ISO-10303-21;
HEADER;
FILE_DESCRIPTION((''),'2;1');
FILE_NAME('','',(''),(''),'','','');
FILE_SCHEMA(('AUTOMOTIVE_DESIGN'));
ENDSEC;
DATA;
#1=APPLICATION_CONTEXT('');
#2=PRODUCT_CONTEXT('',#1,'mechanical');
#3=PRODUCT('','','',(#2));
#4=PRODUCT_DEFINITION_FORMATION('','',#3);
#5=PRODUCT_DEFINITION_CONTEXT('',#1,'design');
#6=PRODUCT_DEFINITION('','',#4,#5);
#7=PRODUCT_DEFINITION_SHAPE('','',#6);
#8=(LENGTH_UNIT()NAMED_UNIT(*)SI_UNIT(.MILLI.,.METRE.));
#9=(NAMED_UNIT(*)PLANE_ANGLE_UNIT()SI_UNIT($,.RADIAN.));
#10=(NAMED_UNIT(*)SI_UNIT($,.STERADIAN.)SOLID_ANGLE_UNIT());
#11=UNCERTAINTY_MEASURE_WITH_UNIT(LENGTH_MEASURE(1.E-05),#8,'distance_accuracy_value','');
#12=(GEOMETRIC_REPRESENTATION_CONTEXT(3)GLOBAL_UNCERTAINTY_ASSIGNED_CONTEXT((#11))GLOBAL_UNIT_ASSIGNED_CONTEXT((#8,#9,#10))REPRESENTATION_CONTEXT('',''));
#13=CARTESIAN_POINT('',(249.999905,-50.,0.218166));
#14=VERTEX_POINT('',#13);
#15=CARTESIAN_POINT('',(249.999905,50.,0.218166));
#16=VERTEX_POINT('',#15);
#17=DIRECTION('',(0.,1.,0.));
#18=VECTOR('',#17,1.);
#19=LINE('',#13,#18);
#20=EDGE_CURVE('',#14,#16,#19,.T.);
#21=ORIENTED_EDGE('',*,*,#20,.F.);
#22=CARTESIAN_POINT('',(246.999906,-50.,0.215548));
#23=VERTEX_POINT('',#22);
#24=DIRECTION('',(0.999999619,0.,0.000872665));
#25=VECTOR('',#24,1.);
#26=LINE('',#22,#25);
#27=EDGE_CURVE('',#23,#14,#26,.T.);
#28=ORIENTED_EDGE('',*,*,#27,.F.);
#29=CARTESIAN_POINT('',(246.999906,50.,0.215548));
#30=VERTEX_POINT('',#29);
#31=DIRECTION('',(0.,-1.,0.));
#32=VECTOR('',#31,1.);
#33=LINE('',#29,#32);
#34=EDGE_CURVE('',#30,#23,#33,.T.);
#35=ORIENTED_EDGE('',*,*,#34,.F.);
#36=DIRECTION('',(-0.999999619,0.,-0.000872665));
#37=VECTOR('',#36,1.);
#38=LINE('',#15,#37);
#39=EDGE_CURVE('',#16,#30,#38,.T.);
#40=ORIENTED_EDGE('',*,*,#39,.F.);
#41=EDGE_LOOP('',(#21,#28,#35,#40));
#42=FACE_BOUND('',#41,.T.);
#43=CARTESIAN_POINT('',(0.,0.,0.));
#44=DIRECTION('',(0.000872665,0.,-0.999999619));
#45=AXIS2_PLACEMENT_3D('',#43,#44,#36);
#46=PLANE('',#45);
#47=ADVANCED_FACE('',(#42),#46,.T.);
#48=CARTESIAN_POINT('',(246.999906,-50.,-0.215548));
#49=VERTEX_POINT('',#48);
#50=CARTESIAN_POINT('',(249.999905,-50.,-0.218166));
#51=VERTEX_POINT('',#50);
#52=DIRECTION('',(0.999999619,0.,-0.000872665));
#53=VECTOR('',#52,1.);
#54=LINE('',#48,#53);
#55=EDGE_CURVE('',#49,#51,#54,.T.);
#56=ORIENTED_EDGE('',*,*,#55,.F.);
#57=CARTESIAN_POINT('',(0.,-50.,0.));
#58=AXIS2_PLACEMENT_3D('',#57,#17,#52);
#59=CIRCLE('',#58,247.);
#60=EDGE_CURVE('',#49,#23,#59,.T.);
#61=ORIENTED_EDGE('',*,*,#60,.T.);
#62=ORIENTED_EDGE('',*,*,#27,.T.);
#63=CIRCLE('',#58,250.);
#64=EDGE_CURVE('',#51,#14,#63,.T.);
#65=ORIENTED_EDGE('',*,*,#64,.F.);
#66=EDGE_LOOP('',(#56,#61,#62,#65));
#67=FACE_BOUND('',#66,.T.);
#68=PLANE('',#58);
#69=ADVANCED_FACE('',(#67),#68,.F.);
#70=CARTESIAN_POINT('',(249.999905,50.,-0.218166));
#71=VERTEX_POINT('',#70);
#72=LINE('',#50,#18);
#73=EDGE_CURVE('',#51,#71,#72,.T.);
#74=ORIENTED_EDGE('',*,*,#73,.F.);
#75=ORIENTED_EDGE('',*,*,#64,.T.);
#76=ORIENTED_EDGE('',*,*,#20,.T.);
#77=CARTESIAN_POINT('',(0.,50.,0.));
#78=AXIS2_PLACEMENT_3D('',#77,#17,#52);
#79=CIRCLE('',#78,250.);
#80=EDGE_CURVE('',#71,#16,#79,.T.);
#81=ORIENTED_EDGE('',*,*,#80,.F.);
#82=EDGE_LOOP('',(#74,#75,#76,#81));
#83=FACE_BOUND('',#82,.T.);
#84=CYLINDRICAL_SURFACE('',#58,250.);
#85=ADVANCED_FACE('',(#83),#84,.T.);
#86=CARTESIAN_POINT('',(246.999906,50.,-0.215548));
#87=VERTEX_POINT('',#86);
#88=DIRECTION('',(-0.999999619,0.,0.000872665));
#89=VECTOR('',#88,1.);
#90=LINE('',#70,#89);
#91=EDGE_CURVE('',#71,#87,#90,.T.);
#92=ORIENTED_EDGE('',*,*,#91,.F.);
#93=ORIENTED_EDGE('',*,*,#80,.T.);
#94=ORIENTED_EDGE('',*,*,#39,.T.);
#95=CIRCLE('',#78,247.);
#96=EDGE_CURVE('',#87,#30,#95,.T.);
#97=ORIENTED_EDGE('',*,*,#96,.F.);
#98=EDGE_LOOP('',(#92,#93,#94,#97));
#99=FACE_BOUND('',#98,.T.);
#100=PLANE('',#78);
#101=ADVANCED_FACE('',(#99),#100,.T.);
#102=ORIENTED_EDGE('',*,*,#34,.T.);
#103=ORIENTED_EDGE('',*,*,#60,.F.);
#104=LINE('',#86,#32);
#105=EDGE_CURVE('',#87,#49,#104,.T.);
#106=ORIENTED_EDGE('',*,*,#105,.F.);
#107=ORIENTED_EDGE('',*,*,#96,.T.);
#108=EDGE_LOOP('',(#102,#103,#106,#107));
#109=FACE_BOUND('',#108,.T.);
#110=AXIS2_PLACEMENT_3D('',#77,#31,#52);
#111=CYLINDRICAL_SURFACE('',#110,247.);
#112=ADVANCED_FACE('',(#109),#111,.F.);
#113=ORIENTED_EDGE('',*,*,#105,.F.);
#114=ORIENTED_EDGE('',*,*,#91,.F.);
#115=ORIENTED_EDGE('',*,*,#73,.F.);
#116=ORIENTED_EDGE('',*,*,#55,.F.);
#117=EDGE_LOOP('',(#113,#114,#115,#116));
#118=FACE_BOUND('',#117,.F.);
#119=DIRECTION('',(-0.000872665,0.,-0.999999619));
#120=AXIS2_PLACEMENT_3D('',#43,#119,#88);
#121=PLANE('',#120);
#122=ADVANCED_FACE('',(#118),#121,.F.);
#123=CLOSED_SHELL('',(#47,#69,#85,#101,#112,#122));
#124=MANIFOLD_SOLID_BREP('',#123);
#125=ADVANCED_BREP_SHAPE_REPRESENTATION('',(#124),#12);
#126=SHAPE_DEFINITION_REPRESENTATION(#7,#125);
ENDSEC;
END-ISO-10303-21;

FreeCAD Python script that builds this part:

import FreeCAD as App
import Part
import Sketcher
Q = App.Units.Quantity

doc = App.newDocument("Part")
body = doc.addObject("PartDesign::Body", "Body")

# Sketch on XY plane
sketch1 = doc.addObject("Sketcher::SketchObject", "Sketch")
body.addObject(sketch1)
sketch1.AttachmentSupport = (doc.XY_Plane, [""])
sketch1.MapMode = "FlatFace"
sketch1.addGeometry(Part.LineSegment(App.Vector(-247, 50, 0), App.Vector(-250, 50, 0)), False)
sketch1.addGeometry(Part.LineSegment(App.Vector(-250, 50, 0), App.Vector(-250, -50, 0)), False)
sketch1.addGeometry(Part.LineSegment(App.Vector(-250, -50, 0), App.Vector(-247, -50, 0)), False)
sketch1.addGeometry(Part.LineSegment(App.Vector(-247, -50, 0), App.Vector(-247, 50, 0)), False)
sketch1.addConstraint(Sketcher.Constraint("Coincident", 0, 2, 1, 1))
sketch1.addConstraint(Sketcher.Constraint("Coincident", 1, 2, 2, 1))
sketch1.addConstraint(Sketcher.Constraint("Coincident", 2, 2, 3, 1))
sketch1.addConstraint(Sketcher.Constraint("Coincident", 3, 2, 0, 1))
sketch1.addConstraint(Sketcher.Constraint("Horizontal", 0))
sketch1.addConstraint(Sketcher.Constraint("Vertical", 1))
sketch1.addConstraint(Sketcher.Constraint("Horizontal", 2))
sketch1.addConstraint(Sketcher.Constraint("Vertical", 3))
sketch1.addConstraint(Sketcher.Constraint("DistanceY", 1, 2, 1, 1, Q("3.937 in")))
sketch1.addConstraint(Sketcher.Constraint("DistanceX", 0, 2, 0, 1, Q("0.1181 in")))
sketch1.addConstraint(Sketcher.Constraint("DistanceX", 0, 2, -1, 1, 250.0))
sketch1.addConstraint(Sketcher.Constraint("DistanceY", -1, 1, 0, 2, Q("1.9685 in")))
revolution = doc.addObject("PartDesign::Revolution", "Revolution")
body.addObject(revolution)
revolution.Profile = sketch1
revolution.ReferenceAxis = (sketch1, ["V_Axis"])
revolution.Angle = 359.9
revolution.Midplane = True

doc.recompute()
